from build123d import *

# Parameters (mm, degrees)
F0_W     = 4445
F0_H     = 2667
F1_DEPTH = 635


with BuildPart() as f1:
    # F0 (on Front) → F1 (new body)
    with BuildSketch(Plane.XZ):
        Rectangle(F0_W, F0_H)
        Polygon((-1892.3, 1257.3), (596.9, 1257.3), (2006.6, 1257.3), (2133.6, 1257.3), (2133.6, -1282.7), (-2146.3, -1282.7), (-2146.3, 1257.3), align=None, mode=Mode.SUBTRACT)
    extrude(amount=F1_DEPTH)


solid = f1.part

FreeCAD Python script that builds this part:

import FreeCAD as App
import Part
import Sketcher

V = App.Vector
Q = App.Units.Quantity

doc = App.newDocument("Part")
body = doc.addObject("PartDesign::Body", "Body")

# Sketch on XZ plane
sketch1 = body.newObject("Sketcher::SketchObject", "Sketch")
sketch1.AttachmentSupport = (doc.getObject("XZ_Plane"), [""])
sketch1.MapMode = "FlatFace"
sketch1.addGeometry([
    Part.LineSegment(V(-2222, 1334, 0), V(-2222, -1334, 0)),  # 0
    Part.LineSegment(V(-2222, -1334, 0), V(2222, -1334, 0)),  # 1
    Part.LineSegment(V(2222, -1334, 0), V(2222, 1334, 0)),  # 2
    Part.LineSegment(V(2222, 1334, 0), V(-2222, 1334, 0)),  # 3
    Part.LineSegment(V(-2146, 1257, 0), V(2134, 1257, 0)),  # 4
    Part.LineSegment(V(2134, 1257, 0), V(2134, -1283, 0)),  # 5
    Part.LineSegment(V(2134, -1283, 0), V(-2146, -1283, 0)),  # 6
    Part.LineSegment(V(-2146, -1283, 0), V(-2146, 1257, 0)),  # 7
], False)
sketch1.addConstraint([
    Sketcher.Constraint("Coincident", 0, 2, 1, 1),
    Sketcher.Constraint("Coincident", 1, 2, 2, 1),
    Sketcher.Constraint("Coincident", 2, 2, 3, 1),
    Sketcher.Constraint("Coincident", 3, 2, 0, 1),
    Sketcher.Constraint("Coincident", 4, 2, 5, 1),
    Sketcher.Constraint("Coincident", 5, 2, 6, 1),
    Sketcher.Constraint("Coincident", 6, 2, 7, 1),
    Sketcher.Constraint("Coincident", 7, 2, 4, 1),
    Sketcher.Constraint("Vertical", 0),
    Sketcher.Constraint("Horizontal", 1),
    Sketcher.Constraint("Vertical", 2),
    Sketcher.Constraint("Horizontal", 3),
    Sketcher.Constraint("Horizontal", 4),
    Sketcher.Constraint("Vertical", 5),
    Sketcher.Constraint("Horizontal", 6),
    Sketcher.Constraint("Vertical", 7),
    Sketcher.Constraint("Symmetric", 0, 2, 2, 2, -1, 1),
    Sketcher.Constraint("DistanceX", 1, 1, 1, 2, Q("175 in")),
    Sketcher.Constraint("DistanceY", 0, 2, 0, 1, Q("105 in")),
    Sketcher.Constraint("DistanceY", 5, 2, 5, 1, Q("100 in")),
    Sketcher.Constraint("DistanceX", 4, 1, 4, 2, Q("168.5 in")),
    Sketcher.Constraint("DistanceX", -1, 1, 4, 2, Q("84 in")),
    Sketcher.Constraint("DistanceY", 4, 2, 2, 2, Q("3 in")),
])
pad1 = body.newObject("PartDesign::Pad", "Pad")
pad1.Profile = sketch1
pad1.Length = Q("25 in")

doc.recompute()
